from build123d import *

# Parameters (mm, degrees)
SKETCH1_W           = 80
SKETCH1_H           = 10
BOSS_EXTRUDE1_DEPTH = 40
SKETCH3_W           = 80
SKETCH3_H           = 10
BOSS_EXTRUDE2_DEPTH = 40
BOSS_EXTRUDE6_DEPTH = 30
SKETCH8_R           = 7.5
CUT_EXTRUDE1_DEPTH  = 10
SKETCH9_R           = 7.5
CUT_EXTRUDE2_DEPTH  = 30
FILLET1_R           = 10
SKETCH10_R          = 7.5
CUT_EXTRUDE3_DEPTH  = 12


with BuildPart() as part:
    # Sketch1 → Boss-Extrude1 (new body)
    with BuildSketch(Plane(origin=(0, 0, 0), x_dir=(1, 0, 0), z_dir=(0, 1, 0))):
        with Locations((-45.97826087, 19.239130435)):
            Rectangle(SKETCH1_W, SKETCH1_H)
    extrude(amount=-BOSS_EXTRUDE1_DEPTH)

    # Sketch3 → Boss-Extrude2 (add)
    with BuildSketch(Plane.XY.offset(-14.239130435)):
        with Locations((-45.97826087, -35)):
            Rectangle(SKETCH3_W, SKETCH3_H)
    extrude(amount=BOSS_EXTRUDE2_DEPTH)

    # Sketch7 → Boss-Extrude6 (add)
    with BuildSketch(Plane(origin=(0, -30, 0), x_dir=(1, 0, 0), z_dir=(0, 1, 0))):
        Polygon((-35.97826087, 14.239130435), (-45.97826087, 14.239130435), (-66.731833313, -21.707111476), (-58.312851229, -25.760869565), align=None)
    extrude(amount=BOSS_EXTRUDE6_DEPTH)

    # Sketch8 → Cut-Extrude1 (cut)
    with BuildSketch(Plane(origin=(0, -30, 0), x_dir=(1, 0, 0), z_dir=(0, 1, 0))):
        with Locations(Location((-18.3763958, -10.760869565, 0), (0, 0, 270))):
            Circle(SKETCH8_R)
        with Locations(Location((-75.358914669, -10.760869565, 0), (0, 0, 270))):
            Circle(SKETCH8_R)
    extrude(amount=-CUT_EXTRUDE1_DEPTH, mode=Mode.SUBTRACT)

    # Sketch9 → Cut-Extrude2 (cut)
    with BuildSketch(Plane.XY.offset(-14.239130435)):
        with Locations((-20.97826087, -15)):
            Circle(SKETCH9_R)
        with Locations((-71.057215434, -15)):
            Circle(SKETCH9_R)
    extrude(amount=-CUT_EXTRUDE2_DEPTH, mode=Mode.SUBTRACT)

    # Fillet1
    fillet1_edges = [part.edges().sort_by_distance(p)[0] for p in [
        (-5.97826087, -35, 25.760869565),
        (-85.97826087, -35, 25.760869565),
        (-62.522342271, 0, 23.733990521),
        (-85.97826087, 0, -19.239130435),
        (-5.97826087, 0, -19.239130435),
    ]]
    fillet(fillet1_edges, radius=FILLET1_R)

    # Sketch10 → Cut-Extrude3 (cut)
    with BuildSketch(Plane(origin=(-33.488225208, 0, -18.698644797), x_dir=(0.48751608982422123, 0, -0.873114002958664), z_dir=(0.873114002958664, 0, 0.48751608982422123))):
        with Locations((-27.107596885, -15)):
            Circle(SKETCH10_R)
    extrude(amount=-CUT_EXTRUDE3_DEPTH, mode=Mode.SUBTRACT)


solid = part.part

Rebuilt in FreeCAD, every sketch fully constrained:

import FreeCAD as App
import Part
import Sketcher

V = App.Vector
Q = App.Units.Quantity


def edges_at(feature, points):
    """Names of the edges that pass closest to the given points."""
    edges = feature.Shape.Edges
    near = lambda p: min(range(len(edges)), key=lambda i: edges[i].distToShape(Part.Vertex(*p))[0])
    return sorted({f"Edge{near(p) + 1}" for p in points})


def add_polygon(sketch, points):
    """Adds a closed chain of lines whose ends are joined by coincident constraints."""
    first, n = sketch.GeometryCount, len(points)
    for a, b in zip(points, points[1:] + points[:1]):
        sketch.addGeometry(Part.LineSegment(App.Vector(*a, 0), App.Vector(*b, 0)), False)
    for i in range(n):
        sketch.addConstraint(Sketcher.Constraint("Coincident", first + i, 2, first + (i + 1) % n, 1))

doc = App.newDocument("Part")
body = doc.addObject("PartDesign::Body", "Body")

sketch1 = doc.addObject("Sketcher::SketchObject", "Sketch")
body.addObject(sketch1)
sketch1.AttachmentSupport = (doc.XZ_Plane, [""])
sketch1.MapMode = "FlatFace"
add_polygon(sketch1, [(-86, -24), (-86, -14), (-6, -14), (-6, -24)])
sketch1.addConstraint([
    Sketcher.Constraint("Vertical", 0),
    Sketcher.Constraint("Horizontal", 1),
    Sketcher.Constraint("Vertical", 2),
    Sketcher.Constraint("Horizontal", 3),
    Sketcher.Constraint("DistanceX", 1, 1, 1, 2, Q("80 mm")),
    Sketcher.Constraint("DistanceY", 0, 1, 0, 2, Q("10 mm")),
    Sketcher.Constraint("DistanceX", 0, 2, -1, 1, Q("85.978261 mm")),
    Sketcher.Constraint("DistanceY", 0, 2, -1, 1, Q("14.23913 mm")),
])
pad1 = doc.addObject("PartDesign::Pad", "Pad")
body.addObject(pad1)
pad1.Profile = sketch1
pad1.Length = 40

sketch2 = doc.addObject("Sketcher::SketchObject", "Sketch001")
body.addObject(sketch2)
sketch2.AttachmentSupport = (doc.XY_Plane, [""])
sketch2.MapMode = "FlatFace"
sketch2.AttachmentOffset = App.Placement(V(0, 0, -14.23913), App.Rotation())
add_polygon(sketch2, [(-86, -30), (-86, -40), (-6, -40), (-6, -30)])
sketch2.addConstraint([
    Sketcher.Constraint("Vertical", 0),
    Sketcher.Constraint("Horizontal", 1),
    Sketcher.Constraint("Vertical", 2),
    Sketcher.Constraint("Horizontal", 3),
    Sketcher.Constraint("DistanceX", 1, 1, 1, 2, Q("80 mm")),
    Sketcher.Constraint("DistanceY", 0, 2, 0, 1, Q("10 mm")),
    Sketcher.Constraint("DistanceY", 0, 2, -1, 1, Q("40 mm")),
    Sketcher.Constraint("DistanceX", 0, 2, -1, 1, Q("85.978261 mm")),
])
pad2 = doc.addObject("PartDesign::Pad", "Pad001")
body.addObject(pad2)
pad2.Profile = sketch2
pad2.Length = 40

sketch3 = doc.addObject("Sketcher::SketchObject", "Sketch002")
body.addObject(sketch3)
sketch3.AttachmentSupport = (doc.XZ_Plane, [""])
sketch3.MapMode = "FlatFace"
sketch3.AttachmentOffset = App.Placement(V(0, 0, 30), App.Rotation())
add_polygon(sketch3, [(-36, -14), (-46, -14), (-67, 22), (-58, 26)])
sketch3.addConstraint([
    Sketcher.Constraint("Horizontal", 0),
    Sketcher.Constraint("DistanceX", 0, 2, 0, 1, Q("10 mm")),
    Sketcher.Constraint("Angle", 1, Q("120 deg")),
    Sketcher.Constraint("DistanceY", 0, 2, 2, 2, Q("40 mm")),
    Sketcher.Constraint("Distance", 2, Q("9.3441 mm")),
    Sketcher.Constraint("DistanceX", 0, 2, -1, 1, Q("45.978261 mm")),
    Sketcher.Constraint("DistanceY", 0, 2, -1, 1, Q("14.23913 mm")),
    Sketcher.Constraint("DistanceY", -1, 1, 1, 2, Q("21.707111 mm")),
])
pad3 = doc.addObject("PartDesign::Pad", "Pad002")
body.addObject(pad3)
pad3.Profile = sketch3
pad3.Length = 30
pad3.Reversed = True

sketch4 = doc.addObject("Sketcher::SketchObject", "Sketch003")
body.addObject(sketch4)
sketch4.AttachmentSupport = (doc.XZ_Plane, [""])
sketch4.MapMode = "FlatFace"
sketch4.AttachmentOffset = App.Placement(V(0, 0, 30), App.Rotation())
sketch4.addGeometry([
    Part.Circle(V(-18, 11, 0), V(0, 0, 1), 8),
    Part.Circle(V(-75, 11, 0), V(0, 0, 1), 8),
], False)
sketch4.addConstraint([
    Sketcher.Constraint("Equal", 0, 1),
    Sketcher.Constraint("Horizontal", 0, 3, 1, 3),
    Sketcher.Constraint("Diameter", 0, Q("15 mm")),
    Sketcher.Constraint("DistanceY", -1, 1, 0, 3, Q("10.76087 mm")),
    Sketcher.Constraint("DistanceX", 1, 3, 0, 3, Q("56.982519 mm")),
    Sketcher.Constraint("DistanceX", 0, 3, -1, 1, Q("18.376396 mm")),
])
pocket1 = doc.addObject("PartDesign::Pocket", "Pocket")
body.addObject(pocket1)
pocket1.Profile = sketch4
pocket1.Length = 10
pocket1.Reversed = True

sketch5 = doc.addObject("Sketcher::SketchObject", "Sketch004")
body.addObject(sketch5)
sketch5.AttachmentSupport = (doc.XY_Plane, [""])
sketch5.MapMode = "FlatFace"
sketch5.AttachmentOffset = App.Placement(V(0, 0, -14.23913), App.Rotation())
sketch5.addGeometry([
    Part.Circle(V(-21, -15, 0), V(0, 0, 1), 8),
    Part.Circle(V(-71, -15, 0), V(0, 0, 1), 8),
], False)
sketch5.addConstraint([
    Sketcher.Constraint("Equal", 0, 1),
    Sketcher.Constraint("Horizontal", 0, 3, 1, 3),
    Sketcher.Constraint("Diameter", 0, Q("15 mm")),
    Sketcher.Constraint("DistanceY", 0, 3, -1, 1, Q("15 mm")),
    Sketcher.Constraint("DistanceX", 0, 3, -1, 1, Q("20.978261 mm")),
    Sketcher.Constraint("DistanceX", 1, 3, -1, 1, Q("71.057215 mm")),
])
pocket2 = doc.addObject("PartDesign::Pocket", "Pocket001")
body.addObject(pocket2)
pocket2.Profile = sketch5
pocket2.Length = 30
doc.recompute()

fillet = doc.addObject("PartDesign::Fillet", "Fillet")
body.addObject(fillet)
fillet.Base = (pocket2, edges_at(pocket2, [
    (-5.978, -35, 25.761),
    (-85.978, -35, 25.761),
    (-62.522, 0, 23.734),
    (-85.978, 0, -19.239),
    (-5.978, 0, -19.239),
]))
fillet.Radius = 10

sketch6 = doc.addObject("Sketcher::SketchObject", "Sketch005")
body.addObject(sketch6)
sketch6.Placement = App.Placement(V(-33.488225, 0, -18.698645), App.Rotation(V(0.48751609, 0, -0.873114003), V(0, 1, 0), V(0.873114003, 0, 0.48751609), "ZXY"))
sketch6.addGeometry(Part.Circle(V(-27, -15, 0), V(0, 0, 1), 8), False)
sketch6.addConstraint([
    Sketcher.Constraint("Diameter", 0, Q("15 mm")),
    Sketcher.Constraint("DistanceY", 0, 3, -1, 1, Q("15 mm")),
    Sketcher.Constraint("DistanceX", 0, 3, -1, 1, Q("27.107597 mm")),
])
pocket3 = doc.addObject("PartDesign::Pocket", "Pocket002")
body.addObject(pocket3)
pocket3.Profile = sketch6
pocket3.Length = 12

doc.recompute()
